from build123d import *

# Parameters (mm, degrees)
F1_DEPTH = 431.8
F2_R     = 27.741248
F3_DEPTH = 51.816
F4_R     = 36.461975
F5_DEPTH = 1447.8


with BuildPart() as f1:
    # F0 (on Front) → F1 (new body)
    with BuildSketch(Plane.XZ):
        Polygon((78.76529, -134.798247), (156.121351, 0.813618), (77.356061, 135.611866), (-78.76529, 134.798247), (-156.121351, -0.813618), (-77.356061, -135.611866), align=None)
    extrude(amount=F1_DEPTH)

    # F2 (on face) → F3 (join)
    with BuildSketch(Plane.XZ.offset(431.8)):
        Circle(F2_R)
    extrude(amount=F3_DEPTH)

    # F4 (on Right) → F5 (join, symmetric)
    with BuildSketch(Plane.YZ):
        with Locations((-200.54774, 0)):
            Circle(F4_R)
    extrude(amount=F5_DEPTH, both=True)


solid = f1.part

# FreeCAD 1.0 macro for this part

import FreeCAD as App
import Part
import Sketcher
Q = App.Units.Quantity

doc = App.newDocument("Part")
body = doc.addObject("PartDesign::Body", "Body")

# Sketch on XZ plane
sketch1 = body.newObject("Sketcher::SketchObject", "Sketch")
sketch1.AttachmentSupport = (doc.getObject("XZ_Plane"), [""])
sketch1.MapMode = "FlatFace"
sketch1.addGeometry(Part.LineSegment(App.Vector(78.76529, -134.798247, 0), App.Vector(156.121351, 0.813618, 0)), False)
sketch1.addGeometry(Part.LineSegment(App.Vector(156.121351, 0.813618, 0), App.Vector(77.356061, 135.611866, 0)), False)
sketch1.addGeometry(Part.LineSegment(App.Vector(77.356061, 135.611866, 0), App.Vector(-78.76529, 134.798247, 0)), False)
sketch1.addGeometry(Part.LineSegment(App.Vector(-78.76529, 134.798247, 0), App.Vector(-156.121351, -0.813618, 0)), False)
sketch1.addGeometry(Part.LineSegment(App.Vector(-156.121351, -0.813618, 0), App.Vector(-77.356061, -135.611866, 0)), False)
sketch1.addGeometry(Part.LineSegment(App.Vector(-77.356061, -135.611866, 0), App.Vector(78.76529, -134.798247, 0)), False)
sketch1.addConstraint(Sketcher.Constraint("Coincident", 0, 2, 1, 1))
sketch1.addConstraint(Sketcher.Constraint("Coincident", 1, 2, 2, 1))
sketch1.addConstraint(Sketcher.Constraint("Coincident", 2, 2, 3, 1))
sketch1.addConstraint(Sketcher.Constraint("Coincident", 3, 2, 4, 1))
sketch1.addConstraint(Sketcher.Constraint("Coincident", 4, 2, 5, 1))
sketch1.addConstraint(Sketcher.Constraint("Coincident", 5, 2, 0, 1))
sketch1.addConstraint(Sketcher.Constraint("Symmetric", 0, 2, 3, 2, -1, 1))
sketch1.addConstraint(Sketcher.Constraint("Symmetric", 1, 2, 4, 2, -1, 1))
sketch1.addConstraint(Sketcher.Constraint("Symmetric", 2, 2, 5, 2, -1, 1))
sketch1.addConstraint(Sketcher.Constraint("Equal", 0, 1))
sketch1.addConstraint(Sketcher.Constraint("Equal", 1, 2))
sketch1.addConstraint(Sketcher.Constraint("DistanceX", 3, 2, 0, 2, 312.242702))
sketch1.addConstraint(Sketcher.Constraint("Distance", 0, 156.123471))
sketch1.addConstraint(Sketcher.Constraint("DistanceX", -1, 1, 1, 2, 77.356061))
sketch1.addConstraint(Sketcher.Constraint("DistanceX", 2, 2, -1, 1, 78.76529))
pad1 = body.newObject("PartDesign::Pad", "Pad")
pad1.Profile = sketch1
pad1.Length = Q("17 in")

# Sketch on XZ plane
sketch2 = body.newObject("Sketcher::SketchObject", "Sketch001")
sketch2.AttachmentSupport = (doc.getObject("XZ_Plane"), [""])
sketch2.MapMode = "FlatFace"
sketch2.AttachmentOffset = App.Placement(App.Vector(0, 0, 17 * 25.4), App.Rotation())
sketch2.addGeometry(Part.Circle(App.Vector(0, 0, 0), App.Vector(0, 0, 1), 27.741248), False)
sketch2.addConstraint(Sketcher.Constraint("Coincident", 0, 3, -1, 1))
sketch2.addConstraint(Sketcher.Constraint("Diameter", 0, 55.482496))
pad2 = body.newObject("PartDesign::Pad", "Pad001")
pad2.Profile = sketch2
pad2.Length = Q("2.04 in")

# Sketch on YZ plane
sketch3 = body.newObject("Sketcher::SketchObject", "Sketch002")
sketch3.AttachmentSupport = (doc.getObject("YZ_Plane"), [""])
sketch3.MapMode = "FlatFace"
sketch3.addGeometry(Part.Circle(App.Vector(-200.54774, 0, 0), App.Vector(0, 0, 1), 36.461975), False)
sketch3.addConstraint(Sketcher.Constraint("PointOnObject", 0, 3, -1))
sketch3.addConstraint(Sketcher.Constraint("Diameter", 0, 72.92395))
sketch3.addConstraint(Sketcher.Constraint("DistanceX", 0, 3, -1, 1, 200.54774))
pad3 = body.newObject("PartDesign::Pad", "Pad002")
pad3.Profile = sketch3
pad3.Length = Q("114 in")
pad3.Midplane = True

doc.recompute()
